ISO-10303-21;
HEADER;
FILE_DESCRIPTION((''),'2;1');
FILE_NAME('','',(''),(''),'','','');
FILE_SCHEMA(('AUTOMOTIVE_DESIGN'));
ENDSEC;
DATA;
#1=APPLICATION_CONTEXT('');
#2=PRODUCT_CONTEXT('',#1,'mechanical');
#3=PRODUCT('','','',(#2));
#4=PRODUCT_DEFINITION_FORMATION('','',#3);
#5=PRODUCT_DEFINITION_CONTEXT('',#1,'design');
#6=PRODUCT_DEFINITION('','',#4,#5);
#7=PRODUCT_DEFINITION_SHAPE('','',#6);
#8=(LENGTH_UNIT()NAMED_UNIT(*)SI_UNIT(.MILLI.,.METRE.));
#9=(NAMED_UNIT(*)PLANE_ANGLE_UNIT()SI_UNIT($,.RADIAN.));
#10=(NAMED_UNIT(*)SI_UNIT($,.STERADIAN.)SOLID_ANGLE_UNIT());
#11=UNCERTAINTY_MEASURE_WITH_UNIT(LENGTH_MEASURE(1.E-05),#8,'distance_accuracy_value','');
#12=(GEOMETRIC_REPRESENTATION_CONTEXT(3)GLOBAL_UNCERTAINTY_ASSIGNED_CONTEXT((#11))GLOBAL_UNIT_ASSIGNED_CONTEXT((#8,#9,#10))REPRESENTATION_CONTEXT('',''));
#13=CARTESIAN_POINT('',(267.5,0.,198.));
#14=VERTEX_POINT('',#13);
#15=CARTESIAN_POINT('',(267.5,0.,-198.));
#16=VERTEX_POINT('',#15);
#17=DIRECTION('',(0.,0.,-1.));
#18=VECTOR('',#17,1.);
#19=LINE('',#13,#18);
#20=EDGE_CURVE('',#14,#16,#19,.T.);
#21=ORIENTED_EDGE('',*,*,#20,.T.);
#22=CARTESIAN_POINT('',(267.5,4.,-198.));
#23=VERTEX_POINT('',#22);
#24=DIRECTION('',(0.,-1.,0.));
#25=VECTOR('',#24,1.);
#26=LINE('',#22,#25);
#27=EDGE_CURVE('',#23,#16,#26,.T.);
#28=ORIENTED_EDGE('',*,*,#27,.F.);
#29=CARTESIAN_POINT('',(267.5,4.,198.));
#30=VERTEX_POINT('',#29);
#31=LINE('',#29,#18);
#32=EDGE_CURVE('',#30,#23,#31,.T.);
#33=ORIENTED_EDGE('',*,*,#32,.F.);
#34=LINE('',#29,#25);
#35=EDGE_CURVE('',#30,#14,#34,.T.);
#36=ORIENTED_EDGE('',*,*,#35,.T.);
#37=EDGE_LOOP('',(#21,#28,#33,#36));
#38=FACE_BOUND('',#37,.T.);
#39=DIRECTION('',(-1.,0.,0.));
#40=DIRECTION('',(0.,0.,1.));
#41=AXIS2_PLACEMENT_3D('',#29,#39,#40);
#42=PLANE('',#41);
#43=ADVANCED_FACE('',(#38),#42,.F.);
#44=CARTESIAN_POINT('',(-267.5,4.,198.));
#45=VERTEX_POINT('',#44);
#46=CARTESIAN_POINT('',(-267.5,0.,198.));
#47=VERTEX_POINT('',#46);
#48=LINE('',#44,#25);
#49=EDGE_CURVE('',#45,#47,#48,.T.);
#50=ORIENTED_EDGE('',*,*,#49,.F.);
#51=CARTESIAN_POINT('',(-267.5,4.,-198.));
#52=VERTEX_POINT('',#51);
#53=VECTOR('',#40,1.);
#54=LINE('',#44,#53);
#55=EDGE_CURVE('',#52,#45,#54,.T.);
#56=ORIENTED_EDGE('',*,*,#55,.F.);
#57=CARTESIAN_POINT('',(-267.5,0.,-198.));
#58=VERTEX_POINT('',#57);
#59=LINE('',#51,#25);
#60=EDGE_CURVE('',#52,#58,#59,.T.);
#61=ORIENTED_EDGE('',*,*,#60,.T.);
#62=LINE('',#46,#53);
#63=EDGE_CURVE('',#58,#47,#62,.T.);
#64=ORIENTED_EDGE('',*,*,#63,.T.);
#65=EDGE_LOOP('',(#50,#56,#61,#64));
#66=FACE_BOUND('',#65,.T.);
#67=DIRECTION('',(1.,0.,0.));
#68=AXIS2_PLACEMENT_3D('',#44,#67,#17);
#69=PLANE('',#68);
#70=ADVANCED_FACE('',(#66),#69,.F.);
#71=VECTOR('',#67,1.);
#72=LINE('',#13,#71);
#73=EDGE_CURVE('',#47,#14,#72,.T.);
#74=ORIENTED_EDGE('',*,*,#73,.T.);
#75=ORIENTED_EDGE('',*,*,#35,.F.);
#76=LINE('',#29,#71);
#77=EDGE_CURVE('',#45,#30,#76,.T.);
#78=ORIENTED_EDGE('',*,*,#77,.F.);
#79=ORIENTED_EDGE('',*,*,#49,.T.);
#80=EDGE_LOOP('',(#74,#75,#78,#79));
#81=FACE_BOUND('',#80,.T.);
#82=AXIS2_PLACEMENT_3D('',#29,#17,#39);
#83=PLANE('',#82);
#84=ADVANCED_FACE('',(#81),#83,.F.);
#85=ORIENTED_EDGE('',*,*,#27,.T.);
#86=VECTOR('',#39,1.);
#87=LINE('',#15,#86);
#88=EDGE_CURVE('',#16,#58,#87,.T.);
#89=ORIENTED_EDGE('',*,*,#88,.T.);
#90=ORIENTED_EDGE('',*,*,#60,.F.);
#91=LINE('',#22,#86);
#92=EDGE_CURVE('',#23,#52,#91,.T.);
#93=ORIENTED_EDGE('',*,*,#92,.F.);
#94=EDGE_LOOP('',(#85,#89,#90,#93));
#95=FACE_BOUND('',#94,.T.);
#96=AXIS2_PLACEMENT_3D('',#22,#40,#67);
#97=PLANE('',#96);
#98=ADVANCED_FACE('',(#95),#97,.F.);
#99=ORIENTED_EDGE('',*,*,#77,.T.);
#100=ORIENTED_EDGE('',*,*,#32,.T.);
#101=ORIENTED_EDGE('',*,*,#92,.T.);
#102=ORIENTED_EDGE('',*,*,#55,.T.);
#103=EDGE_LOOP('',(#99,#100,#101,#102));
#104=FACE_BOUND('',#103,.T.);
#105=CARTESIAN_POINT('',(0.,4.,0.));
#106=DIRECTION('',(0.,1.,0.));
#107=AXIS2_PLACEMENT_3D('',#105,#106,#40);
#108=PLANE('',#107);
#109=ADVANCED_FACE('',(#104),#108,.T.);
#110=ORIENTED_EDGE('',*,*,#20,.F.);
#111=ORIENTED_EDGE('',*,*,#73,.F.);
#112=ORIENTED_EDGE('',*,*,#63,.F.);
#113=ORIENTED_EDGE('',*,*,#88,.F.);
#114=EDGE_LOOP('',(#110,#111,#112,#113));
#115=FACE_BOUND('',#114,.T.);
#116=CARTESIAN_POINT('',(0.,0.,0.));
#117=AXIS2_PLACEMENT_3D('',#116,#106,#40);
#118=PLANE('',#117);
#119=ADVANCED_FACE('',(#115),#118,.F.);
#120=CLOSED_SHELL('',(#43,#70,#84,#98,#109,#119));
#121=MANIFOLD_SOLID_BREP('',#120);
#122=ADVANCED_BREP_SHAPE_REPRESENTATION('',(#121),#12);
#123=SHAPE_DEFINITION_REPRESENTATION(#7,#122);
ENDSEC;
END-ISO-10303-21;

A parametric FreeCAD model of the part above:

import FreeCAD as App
import Part
import Sketcher
Q = App.Units.Quantity

doc = App.newDocument("Part")
body = doc.addObject("PartDesign::Body", "Body")

# Sketch on XZ plane
sketch1 = doc.addObject("Sketcher::SketchObject", "Sketch")
body.addObject(sketch1)
sketch1.AttachmentSupport = (doc.XZ_Plane, [""])
sketch1.MapMode = "FlatFace"
sketch1.addGeometry([
    Part.LineSegment(App.Vector(-268, -198, 0), App.Vector(-268, 198, 0)),
    Part.LineSegment(App.Vector(-268, 198, 0), App.Vector(268, 198, 0)),
    Part.LineSegment(App.Vector(268, 198, 0), App.Vector(268, -198, 0)),
    Part.LineSegment(App.Vector(268, -198, 0), App.Vector(-268, -198, 0)),
], False)
sketch1.addConstraint([
    Sketcher.Constraint("Coincident", 0, 2, 1, 1),
    Sketcher.Constraint("Coincident", 1, 2, 2, 1),
    Sketcher.Constraint("Coincident", 2, 2, 3, 1),
    Sketcher.Constraint("Coincident", 3, 2, 0, 1),
    Sketcher.Constraint("Vertical", 0),
    Sketcher.Constraint("Horizontal", 1),
    Sketcher.Constraint("Vertical", 2),
    Sketcher.Constraint("Horizontal", 3),
    Sketcher.Constraint("Symmetric", 0, 2, 2, 2, -1, 1),
    Sketcher.Constraint("DistanceX", 1, 1, 1, 2, Q("535 mm")),
    Sketcher.Constraint("DistanceY", 0, 1, 0, 2, Q("396 mm")),
])
pad1 = doc.addObject("PartDesign::Pad", "Pad")
body.addObject(pad1)
pad1.Profile = sketch1
pad1.Length = 4
pad1.Reversed = True

doc.recompute()
